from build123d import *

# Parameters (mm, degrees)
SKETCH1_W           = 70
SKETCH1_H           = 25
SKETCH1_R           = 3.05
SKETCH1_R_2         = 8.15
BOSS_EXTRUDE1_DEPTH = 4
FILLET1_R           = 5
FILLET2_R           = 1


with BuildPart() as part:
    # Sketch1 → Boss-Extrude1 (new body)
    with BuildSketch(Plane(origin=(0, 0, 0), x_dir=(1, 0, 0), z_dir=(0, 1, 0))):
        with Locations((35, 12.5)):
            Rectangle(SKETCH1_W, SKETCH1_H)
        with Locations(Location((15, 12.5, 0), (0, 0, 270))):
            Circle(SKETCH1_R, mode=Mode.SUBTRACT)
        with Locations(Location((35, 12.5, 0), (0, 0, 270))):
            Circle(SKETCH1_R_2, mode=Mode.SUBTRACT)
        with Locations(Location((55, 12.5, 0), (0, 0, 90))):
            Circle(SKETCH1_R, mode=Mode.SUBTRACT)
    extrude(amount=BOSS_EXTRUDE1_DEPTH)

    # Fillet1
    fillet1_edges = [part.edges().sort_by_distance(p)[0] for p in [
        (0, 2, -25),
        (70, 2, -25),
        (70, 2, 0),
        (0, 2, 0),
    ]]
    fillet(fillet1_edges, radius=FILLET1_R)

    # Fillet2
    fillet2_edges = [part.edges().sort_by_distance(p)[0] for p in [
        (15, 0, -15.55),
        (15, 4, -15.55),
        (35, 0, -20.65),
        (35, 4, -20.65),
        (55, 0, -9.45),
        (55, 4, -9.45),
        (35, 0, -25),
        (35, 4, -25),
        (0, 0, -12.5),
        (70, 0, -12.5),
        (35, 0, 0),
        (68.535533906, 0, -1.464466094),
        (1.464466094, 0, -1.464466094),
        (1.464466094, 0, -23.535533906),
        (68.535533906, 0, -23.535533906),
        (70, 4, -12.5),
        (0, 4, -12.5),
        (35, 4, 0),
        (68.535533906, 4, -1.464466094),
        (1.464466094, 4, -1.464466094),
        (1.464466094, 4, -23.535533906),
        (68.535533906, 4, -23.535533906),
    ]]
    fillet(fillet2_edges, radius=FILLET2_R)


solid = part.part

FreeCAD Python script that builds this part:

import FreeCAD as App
import Part
import Sketcher
Q = App.Units.Quantity


def edges_at(feature, points):
    """Names of the edges that pass closest to the given points."""
    edges = feature.Shape.Edges
    near = lambda p: min(range(len(edges)), key=lambda i: edges[i].distToShape(Part.Vertex(*p))[0])
    return sorted({f"Edge{near(p) + 1}" for p in points})

doc = App.newDocument("Part")
params = doc.addObject("Spreadsheet::Sheet", "Params")
for row, (alias, value) in enumerate([
    ("sketch1_diameter", "6.1 mm"),
    ("sketch1_diameter2", "16.3 mm"),
    ("sketch1_width", "70 mm"),
    ("sketch1_height", "25 mm"),
    ("pad1_length", "4 mm"),
    ("fillet_radius", "5 mm"),
    ("fillet2_radius", "1 mm"),
], start=1):
    params.set(f"A{row}", alias)
    params.set(f"B{row}", "=" + value)
    params.setAlias(f"B{row}", alias)

body = doc.addObject("PartDesign::Body", "Body")

# Sketch on XZ plane
sketch1 = body.newObject("Sketcher::SketchObject", "Sketch")
sketch1.AttachmentSupport = (doc.getObject("XZ_Plane"), [""])
sketch1.MapMode = "FlatFace"
sketch1.addGeometry([
    Part.LineSegment(App.Vector(0, -25, 0), App.Vector(0, 0, 0)),  # 0
    Part.LineSegment(App.Vector(0, 0, 0), App.Vector(70, 0, 0)),  # 1
    Part.LineSegment(App.Vector(70, 0, 0), App.Vector(70, -25, 0)),  # 2
    Part.LineSegment(App.Vector(70, -25, 0), App.Vector(0, -25, 0)),  # 3
    Part.Circle(App.Vector(15, -12.5, 0), App.Vector(0, 0, 1), 3),  # 4
    Part.Circle(App.Vector(35, -12.5, 0), App.Vector(0, 0, 1), 8.2),  # 5
    Part.Circle(App.Vector(55, -12.5, 0), App.Vector(0, 0, 1), 3),  # 6
], False)
sketch1.addConstraint([
    Sketcher.Constraint("Coincident", 0, 2, 1, 1),
    Sketcher.Constraint("Coincident", 1, 2, 2, 1),
    Sketcher.Constraint("Coincident", 2, 2, 3, 1),
    Sketcher.Constraint("Coincident", 3, 2, 0, 1),
    Sketcher.Constraint("Vertical", 0),
    Sketcher.Constraint("Horizontal", 1),
    Sketcher.Constraint("Vertical", 2),
    Sketcher.Constraint("Horizontal", 3),
    Sketcher.Constraint("Coincident", 0, 2, -1, 1),
    Sketcher.Constraint("Equal", 4, 6),
    Sketcher.Constraint("Horizontal", 4, 3, 5, 3),
    Sketcher.Constraint("Horizontal", 5, 3, 6, 3),
    Sketcher.Constraint("Diameter", 4, Q("6.1 mm")),
    Sketcher.Constraint("Diameter", 5, Q("16.3 mm")),
    Sketcher.Constraint("DistanceX", 1, 1, 1, 2, Q("70 mm")),
    Sketcher.Constraint("DistanceY", 0, 1, 0, 2, Q("25 mm")),
    Sketcher.Constraint("DistanceX", -1, 1, 4, 3, Q("15 mm")),
    Sketcher.Constraint("DistanceX", -1, 1, 5, 3, Q("35 mm")),
    Sketcher.Constraint("DistanceX", -1, 1, 6, 3, Q("55 mm")),
    Sketcher.Constraint("DistanceY", 4, 3, -1, 1, Q("12.5 mm")),
])
sketch1.setExpression("Constraints[12]", "Params.sketch1_diameter")
sketch1.setExpression("Constraints[13]", "Params.sketch1_diameter2")
sketch1.setExpression("Constraints[14]", "Params.sketch1_width")
sketch1.setExpression("Constraints[15]", "Params.sketch1_height")
pad1 = body.newObject("PartDesign::Pad", "Pad")
pad1.Profile = sketch1
pad1.setExpression("Length", "Params.pad1_length")
pad1.Reversed = True
doc.recompute()

fillet = body.newObject("PartDesign::Fillet", "Fillet")
fillet.Base = (pad1, edges_at(pad1, [
    (0, 2, -25),
    (70, 2, -25),
    (70, 2, 0),
    (0, 2, 0),
]))
fillet.setExpression("Radius", "Params.fillet_radius")
doc.recompute()

fillet2 = body.newObject("PartDesign::Fillet", "Fillet001")
fillet2.Base = (fillet, edges_at(fillet, [
    (15, 0, -15.55),
    (15, 4, -15.55),
    (35, 0, -20.65),
    (35, 4, -20.65),
    (55, 0, -9.45),
    (55, 4, -9.45),
    (35, 0, -25),
    (35, 4, -25),
    (0, 0, -12.5),
    (70, 0, -12.5),
    (35, 0, 0),
    (68.536, 0, -1.464),
    (1.464, 0, -1.464),
    (1.464, 0, -23.536),
    (68.536, 0, -23.536),
    (70, 4, -12.5),
    (0, 4, -12.5),
    (35, 4, 0),
    (68.536, 4, -1.464),
    (1.464, 4, -1.464),
    (1.464, 4, -23.536),
    (68.536, 4, -23.536),
]))
fillet2.setExpression("Radius", "Params.fillet2_radius")

doc.recompute()
